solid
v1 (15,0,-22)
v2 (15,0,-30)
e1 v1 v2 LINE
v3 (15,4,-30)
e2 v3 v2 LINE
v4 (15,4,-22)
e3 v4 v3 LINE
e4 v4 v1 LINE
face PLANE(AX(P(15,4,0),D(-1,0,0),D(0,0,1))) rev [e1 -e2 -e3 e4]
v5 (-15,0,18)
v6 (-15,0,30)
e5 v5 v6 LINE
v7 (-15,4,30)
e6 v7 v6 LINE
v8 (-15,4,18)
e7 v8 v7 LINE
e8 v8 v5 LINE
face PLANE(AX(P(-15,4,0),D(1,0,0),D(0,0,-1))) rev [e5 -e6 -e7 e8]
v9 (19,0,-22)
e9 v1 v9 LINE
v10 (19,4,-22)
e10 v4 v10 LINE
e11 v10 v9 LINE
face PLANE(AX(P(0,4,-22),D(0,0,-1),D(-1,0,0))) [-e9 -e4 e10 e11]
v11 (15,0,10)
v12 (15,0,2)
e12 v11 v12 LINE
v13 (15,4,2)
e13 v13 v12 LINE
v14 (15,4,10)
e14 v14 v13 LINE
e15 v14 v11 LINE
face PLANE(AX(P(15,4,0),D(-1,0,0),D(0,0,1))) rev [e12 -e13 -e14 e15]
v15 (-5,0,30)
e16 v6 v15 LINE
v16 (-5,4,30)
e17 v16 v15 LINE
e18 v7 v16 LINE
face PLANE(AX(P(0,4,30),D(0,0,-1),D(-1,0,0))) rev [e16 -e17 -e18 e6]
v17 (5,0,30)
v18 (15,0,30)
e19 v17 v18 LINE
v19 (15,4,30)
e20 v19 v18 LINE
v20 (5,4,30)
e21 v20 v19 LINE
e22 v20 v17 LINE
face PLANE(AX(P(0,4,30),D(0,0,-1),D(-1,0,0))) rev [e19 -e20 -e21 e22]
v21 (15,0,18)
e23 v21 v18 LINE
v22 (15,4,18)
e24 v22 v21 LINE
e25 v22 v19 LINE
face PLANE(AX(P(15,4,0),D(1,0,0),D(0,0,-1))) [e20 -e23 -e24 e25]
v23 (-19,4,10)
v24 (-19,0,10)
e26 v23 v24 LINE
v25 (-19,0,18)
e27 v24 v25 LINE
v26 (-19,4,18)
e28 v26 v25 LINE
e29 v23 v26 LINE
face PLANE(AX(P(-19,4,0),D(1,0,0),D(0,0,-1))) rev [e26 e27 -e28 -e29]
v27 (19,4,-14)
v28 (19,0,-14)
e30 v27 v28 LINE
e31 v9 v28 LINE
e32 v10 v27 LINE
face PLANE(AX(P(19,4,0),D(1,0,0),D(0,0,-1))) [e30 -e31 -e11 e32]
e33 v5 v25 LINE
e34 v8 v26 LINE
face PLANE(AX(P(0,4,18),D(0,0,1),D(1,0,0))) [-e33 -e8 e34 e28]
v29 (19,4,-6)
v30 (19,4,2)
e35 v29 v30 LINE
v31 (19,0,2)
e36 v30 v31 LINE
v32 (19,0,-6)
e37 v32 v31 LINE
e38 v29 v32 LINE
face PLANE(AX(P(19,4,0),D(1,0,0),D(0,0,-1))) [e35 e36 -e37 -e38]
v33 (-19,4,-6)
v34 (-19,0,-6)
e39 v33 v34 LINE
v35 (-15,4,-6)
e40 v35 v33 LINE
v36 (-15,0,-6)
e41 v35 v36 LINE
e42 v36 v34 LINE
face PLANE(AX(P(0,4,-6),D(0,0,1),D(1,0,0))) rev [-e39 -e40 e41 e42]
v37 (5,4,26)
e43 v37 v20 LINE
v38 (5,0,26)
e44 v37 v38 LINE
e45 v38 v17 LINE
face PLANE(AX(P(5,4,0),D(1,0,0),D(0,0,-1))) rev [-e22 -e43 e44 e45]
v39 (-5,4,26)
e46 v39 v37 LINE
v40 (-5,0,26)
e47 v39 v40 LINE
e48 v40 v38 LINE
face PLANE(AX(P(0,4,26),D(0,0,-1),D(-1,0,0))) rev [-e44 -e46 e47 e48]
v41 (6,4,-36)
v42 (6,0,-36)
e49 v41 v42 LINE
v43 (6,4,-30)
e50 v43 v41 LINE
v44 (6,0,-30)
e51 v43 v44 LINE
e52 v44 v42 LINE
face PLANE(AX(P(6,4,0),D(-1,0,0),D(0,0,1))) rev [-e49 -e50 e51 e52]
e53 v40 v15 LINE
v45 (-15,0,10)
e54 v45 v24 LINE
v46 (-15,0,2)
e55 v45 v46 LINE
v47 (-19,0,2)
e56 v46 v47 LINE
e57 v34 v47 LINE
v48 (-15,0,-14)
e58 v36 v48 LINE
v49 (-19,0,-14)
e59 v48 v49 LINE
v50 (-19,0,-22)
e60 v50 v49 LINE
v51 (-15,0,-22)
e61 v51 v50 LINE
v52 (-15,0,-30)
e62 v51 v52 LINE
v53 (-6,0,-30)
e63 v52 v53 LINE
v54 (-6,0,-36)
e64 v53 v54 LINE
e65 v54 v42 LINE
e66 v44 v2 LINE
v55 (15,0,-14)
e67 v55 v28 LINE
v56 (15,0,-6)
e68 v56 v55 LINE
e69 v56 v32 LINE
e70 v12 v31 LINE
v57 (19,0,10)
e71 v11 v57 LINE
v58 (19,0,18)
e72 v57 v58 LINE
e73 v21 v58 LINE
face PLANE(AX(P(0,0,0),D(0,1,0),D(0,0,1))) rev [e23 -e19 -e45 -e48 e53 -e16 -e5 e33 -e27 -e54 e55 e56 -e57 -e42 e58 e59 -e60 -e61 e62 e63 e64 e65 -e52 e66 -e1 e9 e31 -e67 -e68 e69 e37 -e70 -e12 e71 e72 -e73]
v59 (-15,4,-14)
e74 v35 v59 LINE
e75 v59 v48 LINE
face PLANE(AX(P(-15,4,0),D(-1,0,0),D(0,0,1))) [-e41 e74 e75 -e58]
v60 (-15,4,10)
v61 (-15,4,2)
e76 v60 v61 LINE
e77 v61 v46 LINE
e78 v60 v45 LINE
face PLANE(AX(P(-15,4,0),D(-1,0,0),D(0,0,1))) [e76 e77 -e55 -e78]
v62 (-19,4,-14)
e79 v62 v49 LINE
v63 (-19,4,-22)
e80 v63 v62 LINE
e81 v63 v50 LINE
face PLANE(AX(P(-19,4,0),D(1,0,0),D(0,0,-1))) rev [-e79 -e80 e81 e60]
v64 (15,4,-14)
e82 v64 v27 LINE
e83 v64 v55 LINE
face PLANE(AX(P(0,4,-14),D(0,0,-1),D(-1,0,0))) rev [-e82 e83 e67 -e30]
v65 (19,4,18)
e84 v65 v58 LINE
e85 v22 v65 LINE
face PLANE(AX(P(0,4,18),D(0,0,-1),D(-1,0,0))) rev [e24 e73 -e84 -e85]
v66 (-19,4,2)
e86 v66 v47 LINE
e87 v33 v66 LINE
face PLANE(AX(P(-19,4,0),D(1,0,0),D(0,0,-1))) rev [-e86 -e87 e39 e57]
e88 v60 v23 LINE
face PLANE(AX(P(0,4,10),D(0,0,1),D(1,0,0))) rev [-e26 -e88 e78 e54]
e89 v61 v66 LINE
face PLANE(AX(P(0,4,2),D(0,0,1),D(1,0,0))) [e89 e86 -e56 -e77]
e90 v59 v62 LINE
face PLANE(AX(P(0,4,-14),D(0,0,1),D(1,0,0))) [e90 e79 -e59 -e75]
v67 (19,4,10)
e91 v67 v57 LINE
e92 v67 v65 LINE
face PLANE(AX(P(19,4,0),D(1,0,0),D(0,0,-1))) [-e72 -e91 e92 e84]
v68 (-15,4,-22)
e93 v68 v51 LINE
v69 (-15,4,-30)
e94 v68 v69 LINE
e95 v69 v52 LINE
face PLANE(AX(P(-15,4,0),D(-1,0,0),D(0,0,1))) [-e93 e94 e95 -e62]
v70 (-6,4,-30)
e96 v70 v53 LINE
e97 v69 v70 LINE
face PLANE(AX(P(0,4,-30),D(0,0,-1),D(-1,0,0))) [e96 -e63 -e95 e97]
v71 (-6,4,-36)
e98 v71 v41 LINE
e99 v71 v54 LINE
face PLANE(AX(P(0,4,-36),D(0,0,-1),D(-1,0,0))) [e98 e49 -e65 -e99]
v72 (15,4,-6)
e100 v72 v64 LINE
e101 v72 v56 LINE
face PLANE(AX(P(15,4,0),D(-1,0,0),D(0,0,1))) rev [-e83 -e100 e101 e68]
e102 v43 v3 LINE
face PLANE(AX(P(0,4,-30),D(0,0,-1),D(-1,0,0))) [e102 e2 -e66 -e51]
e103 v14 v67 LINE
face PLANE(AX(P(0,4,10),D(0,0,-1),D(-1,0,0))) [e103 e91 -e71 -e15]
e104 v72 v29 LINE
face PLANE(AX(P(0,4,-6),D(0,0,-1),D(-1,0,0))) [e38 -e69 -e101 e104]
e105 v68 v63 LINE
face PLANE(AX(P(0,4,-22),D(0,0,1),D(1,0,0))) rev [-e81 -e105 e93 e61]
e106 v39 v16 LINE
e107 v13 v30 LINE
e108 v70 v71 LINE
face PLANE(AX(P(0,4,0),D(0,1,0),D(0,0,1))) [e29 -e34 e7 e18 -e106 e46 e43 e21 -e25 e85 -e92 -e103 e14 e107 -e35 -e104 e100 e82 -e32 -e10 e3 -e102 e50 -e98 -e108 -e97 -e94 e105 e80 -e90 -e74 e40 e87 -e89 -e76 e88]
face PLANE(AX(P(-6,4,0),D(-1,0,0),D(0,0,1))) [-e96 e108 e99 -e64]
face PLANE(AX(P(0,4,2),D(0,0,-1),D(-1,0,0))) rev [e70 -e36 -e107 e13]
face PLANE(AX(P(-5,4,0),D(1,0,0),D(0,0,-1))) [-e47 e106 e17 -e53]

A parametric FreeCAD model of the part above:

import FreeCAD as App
import Part
import Sketcher
Q = App.Units.Quantity

doc = App.newDocument("Part")
params = doc.addObject("Spreadsheet::Sheet", "Params")
for row, (alias, value) in enumerate([
    ("sketch1_width", "4 mm"),
    ("sketch1_width2", "10 mm"),
    ("sketch1_width3", "9 mm"),
    ("sketch1_height", "8 mm"),
    ("sketch1_height2", "6 mm"),
    ("pad1_length", "4 mm"),
], start=1):
    params.set(f"A{row}", alias)
    params.set(f"B{row}", "=" + value)
    params.setAlias(f"B{row}", alias)

body = doc.addObject("PartDesign::Body", "Body")

sketch1 = body.newObject("Sketcher::SketchObject", "Sketch")
sketch1.AttachmentSupport = (doc.getObject("XZ_Plane"), [""])
sketch1.MapMode = "FlatFace"
sketch1.addGeometry([
    Part.LineSegment(App.Vector(-15, -30, 0), App.Vector(-15, -22, 0)),
    Part.LineSegment(App.Vector(-15, -22, 0), App.Vector(-19, -22, 0)),
    Part.LineSegment(App.Vector(-19, -22, 0), App.Vector(-19, -14, 0)),
    Part.LineSegment(App.Vector(-19, -14, 0), App.Vector(-15, -14, 0)),
    Part.LineSegment(App.Vector(-15, -14, 0), App.Vector(-15, -6, 0)),
    Part.LineSegment(App.Vector(-15, -6, 0), App.Vector(-19, -6, 0)),
    Part.LineSegment(App.Vector(-19, -6, 0), App.Vector(-19, 2, 0)),
    Part.LineSegment(App.Vector(-19, 2, 0), App.Vector(-15, 2, 0)),
    Part.LineSegment(App.Vector(-15, 2, 0), App.Vector(-15, 10, 0)),
    Part.LineSegment(App.Vector(-15, 10, 0), App.Vector(-19, 10, 0)),
    Part.LineSegment(App.Vector(-19, 10, 0), App.Vector(-19, 18, 0)),
    Part.LineSegment(App.Vector(-19, 18, 0), App.Vector(-15, 18, 0)),
    Part.LineSegment(App.Vector(-15, 18, 0), App.Vector(-15, 30, 0)),
    Part.LineSegment(App.Vector(-15, 30, 0), App.Vector(-5, 30, 0)),
    Part.LineSegment(App.Vector(-5, 30, 0), App.Vector(-5, 26, 0)),
    Part.LineSegment(App.Vector(-5, 26, 0), App.Vector(5, 26, 0)),
    Part.LineSegment(App.Vector(5, 26, 0), App.Vector(5, 30, 0)),
    Part.LineSegment(App.Vector(5, 30, 0), App.Vector(15, 30, 0)),
    Part.LineSegment(App.Vector(15, 30, 0), App.Vector(15, 18, 0)),
    Part.LineSegment(App.Vector(15, 18, 0), App.Vector(19, 18, 0)),
    Part.LineSegment(App.Vector(19, 18, 0), App.Vector(19, 10, 0)),
    Part.LineSegment(App.Vector(19, 10, 0), App.Vector(15, 10, 0)),
    Part.LineSegment(App.Vector(15, 10, 0), App.Vector(15, 2, 0)),
    Part.LineSegment(App.Vector(15, 2, 0), App.Vector(19, 2, 0)),
    Part.LineSegment(App.Vector(19, 2, 0), App.Vector(19, -6, 0)),
    Part.LineSegment(App.Vector(19, -6, 0), App.Vector(15, -6, 0)),
    Part.LineSegment(App.Vector(15, -6, 0), App.Vector(15, -14, 0)),
    Part.LineSegment(App.Vector(15, -14, 0), App.Vector(19, -14, 0)),
    Part.LineSegment(App.Vector(19, -14, 0), App.Vector(19, -22, 0)),
    Part.LineSegment(App.Vector(19, -22, 0), App.Vector(15, -22, 0)),
    Part.LineSegment(App.Vector(15, -22, 0), App.Vector(15, -30, 0)),
    Part.LineSegment(App.Vector(15, -30, 0), App.Vector(6, -30, 0)),
    Part.LineSegment(App.Vector(6, -30, 0), App.Vector(6, -36, 0)),
    Part.LineSegment(App.Vector(6, -36, 0), App.Vector(-6, -36, 0)),
    Part.LineSegment(App.Vector(-6, -36, 0), App.Vector(-6, -30, 0)),
    Part.LineSegment(App.Vector(-6, -30, 0), App.Vector(-15, -30, 0)),
], False)
sketch1.addConstraint([
    Sketcher.Constraint("Coincident", 0, 2, 1, 1),
    Sketcher.Constraint("Coincident", 1, 2, 2, 1),
    Sketcher.Constraint("Coincident", 2, 2, 3, 1),
    Sketcher.Constraint("Coincident", 3, 2, 4, 1),
    Sketcher.Constraint("Coincident", 4, 2, 5, 1),
    Sketcher.Constraint("Coincident", 5, 2, 6, 1),
    Sketcher.Constraint("Coincident", 6, 2, 7, 1),
    Sketcher.Constraint("Coincident", 7, 2, 8, 1),
    Sketcher.Constraint("Coincident", 8, 2, 9, 1),
    Sketcher.Constraint("Coincident", 9, 2, 10, 1),
    Sketcher.Constraint("Coincident", 10, 2, 11, 1),
    Sketcher.Constraint("Coincident", 11, 2, 12, 1),
    Sketcher.Constraint("Coincident", 12, 2, 13, 1),
    Sketcher.Constraint("Coincident", 13, 2, 14, 1),
    Sketcher.Constraint("Coincident", 14, 2, 15, 1),
    Sketcher.Constraint("Coincident", 15, 2, 16, 1),
    Sketcher.Constraint("Coincident", 16, 2, 17, 1),
    Sketcher.Constraint("Coincident", 17, 2, 18, 1),
    Sketcher.Constraint("Coincident", 18, 2, 19, 1),
    Sketcher.Constraint("Coincident", 19, 2, 20, 1),
    Sketcher.Constraint("Coincident", 20, 2, 21, 1),
    Sketcher.Constraint("Coincident", 21, 2, 22, 1),
    Sketcher.Constraint("Coincident", 22, 2, 23, 1),
    Sketcher.Constraint("Coincident", 23, 2, 24, 1),
    Sketcher.Constraint("Coincident", 24, 2, 25, 1),
    Sketcher.Constraint("Coincident", 25, 2, 26, 1),
    Sketcher.Constraint("Coincident", 26, 2, 27, 1),
    Sketcher.Constraint("Coincident", 27, 2, 28, 1),
    Sketcher.Constraint("Coincident", 28, 2, 29, 1),
    Sketcher.Constraint("Coincident", 29, 2, 30, 1),
    Sketcher.Constraint("Coincident", 30, 2, 31, 1),
    Sketcher.Constraint("Coincident", 31, 2, 32, 1),
    Sketcher.Constraint("Coincident", 32, 2, 33, 1),
    Sketcher.Constraint("Coincident", 33, 2, 34, 1),
    Sketcher.Constraint("Coincident", 34, 2, 35, 1),
    Sketcher.Constraint("Coincident", 35, 2, 0, 1),
    Sketcher.Constraint("Vertical", 0),
    Sketcher.Constraint("Horizontal", 1),
    Sketcher.Constraint("Vertical", 2),
    Sketcher.Constraint("Horizontal", 3),
    Sketcher.Constraint("Vertical", 4),
    Sketcher.Constraint("Horizontal", 5),
    Sketcher.Constraint("Vertical", 6),
    Sketcher.Constraint("Horizontal", 7),
    Sketcher.Constraint("Vertical", 8),
    Sketcher.Constraint("Horizontal", 9),
    Sketcher.Constraint("Vertical", 10),
    Sketcher.Constraint("Horizontal", 11),
    Sketcher.Constraint("Vertical", 12),
    Sketcher.Constraint("Horizontal", 13),
    Sketcher.Constraint("Vertical", 14),
    Sketcher.Constraint("Horizontal", 15),
    Sketcher.Constraint("Vertical", 16),
    Sketcher.Constraint("Horizontal", 17),
    Sketcher.Constraint("Vertical", 18),
    Sketcher.Constraint("Horizontal", 19),
    Sketcher.Constraint("Vertical", 20),
    Sketcher.Constraint("Horizontal", 21),
    Sketcher.Constraint("Vertical", 22),
    Sketcher.Constraint("Horizontal", 23),
    Sketcher.Constraint("Vertical", 24),
    Sketcher.Constraint("Horizontal", 25),
    Sketcher.Constraint("Vertical", 26),
    Sketcher.Constraint("Horizontal", 27),
    Sketcher.Constraint("Vertical", 28),
    Sketcher.Constraint("Horizontal", 29),
    Sketcher.Constraint("Vertical", 30),
    Sketcher.Constraint("Horizontal", 31),
    Sketcher.Constraint("Vertical", 32),
    Sketcher.Constraint("Horizontal", 33),
    Sketcher.Constraint("Vertical", 34),
    Sketcher.Constraint("Horizontal", 35),
    Sketcher.Constraint("Symmetric", 12, 2, 30, 2, -1, 1),
    Sketcher.Constraint("Symmetric", 17, 2, 35, 2, -1, 1),
    Sketcher.Constraint("Symmetric", 13, 2, 16, 2, -2),
    Sketcher.Constraint("Symmetric", 11, 2, 18, 2, -2),
    Sketcher.Constraint("Symmetric", 9, 2, 20, 2, -2),
    Sketcher.Constraint("Symmetric", 7, 2, 22, 2, -2),
    Sketcher.Constraint("Symmetric", 5, 2, 24, 2, -2),
    Sketcher.Constraint("Symmetric", 3, 2, 26, 2, -2),
    Sketcher.Constraint("Symmetric", 1, 2, 28, 2, -2),
    Sketcher.Constraint("Vertical", 0, 2, 3, 2),
    Sketcher.Constraint("Vertical", 2, 2, 5, 2),
    Sketcher.Constraint("Vertical", 4, 2, 7, 2),
    Sketcher.Constraint("Vertical", 6, 2, 9, 2),
    Sketcher.Constraint("Equal", 13, 15),
    Sketcher.Constraint("Equal", 31, 35),
    Sketcher.Constraint("Equal", 0, 2),
    Sketcher.Constraint("Equal", 2, 4),
    Sketcher.Constraint("Equal", 4, 6),
    Sketcher.Constraint("Equal", 6, 8),
    Sketcher.Constraint("Equal", 8, 10),
    Sketcher.Constraint("Equal", 33, 12),
    Sketcher.Constraint("Equal", 29, 14),
    Sketcher.Constraint("DistanceX", 1, 2, 1, 1, Q("4 mm")),
    Sketcher.Constraint("DistanceX", 13, 1, 13, 2, Q("10 mm")),
    Sketcher.Constraint("DistanceX", 31, 2, 31, 1, Q("9 mm")),
    Sketcher.Constraint("DistanceY", 0, 1, 0, 2, Q("8 mm")),
    Sketcher.Constraint("DistanceY", 32, 2, 32, 1, Q("6 mm")),
])
sketch1.setExpression("Constraints[94]", "Params.sketch1_width")
sketch1.setExpression("Constraints[95]", "Params.sketch1_width2")
sketch1.setExpression("Constraints[96]", "Params.sketch1_width3")
sketch1.setExpression("Constraints[97]", "Params.sketch1_height")
sketch1.setExpression("Constraints[98]", "Params.sketch1_height2")
pad1 = body.newObject("PartDesign::Pad", "Pad")
pad1.Profile = sketch1
pad1.setExpression("Length", "Params.pad1_length")
pad1.Reversed = True

doc.recompute()
